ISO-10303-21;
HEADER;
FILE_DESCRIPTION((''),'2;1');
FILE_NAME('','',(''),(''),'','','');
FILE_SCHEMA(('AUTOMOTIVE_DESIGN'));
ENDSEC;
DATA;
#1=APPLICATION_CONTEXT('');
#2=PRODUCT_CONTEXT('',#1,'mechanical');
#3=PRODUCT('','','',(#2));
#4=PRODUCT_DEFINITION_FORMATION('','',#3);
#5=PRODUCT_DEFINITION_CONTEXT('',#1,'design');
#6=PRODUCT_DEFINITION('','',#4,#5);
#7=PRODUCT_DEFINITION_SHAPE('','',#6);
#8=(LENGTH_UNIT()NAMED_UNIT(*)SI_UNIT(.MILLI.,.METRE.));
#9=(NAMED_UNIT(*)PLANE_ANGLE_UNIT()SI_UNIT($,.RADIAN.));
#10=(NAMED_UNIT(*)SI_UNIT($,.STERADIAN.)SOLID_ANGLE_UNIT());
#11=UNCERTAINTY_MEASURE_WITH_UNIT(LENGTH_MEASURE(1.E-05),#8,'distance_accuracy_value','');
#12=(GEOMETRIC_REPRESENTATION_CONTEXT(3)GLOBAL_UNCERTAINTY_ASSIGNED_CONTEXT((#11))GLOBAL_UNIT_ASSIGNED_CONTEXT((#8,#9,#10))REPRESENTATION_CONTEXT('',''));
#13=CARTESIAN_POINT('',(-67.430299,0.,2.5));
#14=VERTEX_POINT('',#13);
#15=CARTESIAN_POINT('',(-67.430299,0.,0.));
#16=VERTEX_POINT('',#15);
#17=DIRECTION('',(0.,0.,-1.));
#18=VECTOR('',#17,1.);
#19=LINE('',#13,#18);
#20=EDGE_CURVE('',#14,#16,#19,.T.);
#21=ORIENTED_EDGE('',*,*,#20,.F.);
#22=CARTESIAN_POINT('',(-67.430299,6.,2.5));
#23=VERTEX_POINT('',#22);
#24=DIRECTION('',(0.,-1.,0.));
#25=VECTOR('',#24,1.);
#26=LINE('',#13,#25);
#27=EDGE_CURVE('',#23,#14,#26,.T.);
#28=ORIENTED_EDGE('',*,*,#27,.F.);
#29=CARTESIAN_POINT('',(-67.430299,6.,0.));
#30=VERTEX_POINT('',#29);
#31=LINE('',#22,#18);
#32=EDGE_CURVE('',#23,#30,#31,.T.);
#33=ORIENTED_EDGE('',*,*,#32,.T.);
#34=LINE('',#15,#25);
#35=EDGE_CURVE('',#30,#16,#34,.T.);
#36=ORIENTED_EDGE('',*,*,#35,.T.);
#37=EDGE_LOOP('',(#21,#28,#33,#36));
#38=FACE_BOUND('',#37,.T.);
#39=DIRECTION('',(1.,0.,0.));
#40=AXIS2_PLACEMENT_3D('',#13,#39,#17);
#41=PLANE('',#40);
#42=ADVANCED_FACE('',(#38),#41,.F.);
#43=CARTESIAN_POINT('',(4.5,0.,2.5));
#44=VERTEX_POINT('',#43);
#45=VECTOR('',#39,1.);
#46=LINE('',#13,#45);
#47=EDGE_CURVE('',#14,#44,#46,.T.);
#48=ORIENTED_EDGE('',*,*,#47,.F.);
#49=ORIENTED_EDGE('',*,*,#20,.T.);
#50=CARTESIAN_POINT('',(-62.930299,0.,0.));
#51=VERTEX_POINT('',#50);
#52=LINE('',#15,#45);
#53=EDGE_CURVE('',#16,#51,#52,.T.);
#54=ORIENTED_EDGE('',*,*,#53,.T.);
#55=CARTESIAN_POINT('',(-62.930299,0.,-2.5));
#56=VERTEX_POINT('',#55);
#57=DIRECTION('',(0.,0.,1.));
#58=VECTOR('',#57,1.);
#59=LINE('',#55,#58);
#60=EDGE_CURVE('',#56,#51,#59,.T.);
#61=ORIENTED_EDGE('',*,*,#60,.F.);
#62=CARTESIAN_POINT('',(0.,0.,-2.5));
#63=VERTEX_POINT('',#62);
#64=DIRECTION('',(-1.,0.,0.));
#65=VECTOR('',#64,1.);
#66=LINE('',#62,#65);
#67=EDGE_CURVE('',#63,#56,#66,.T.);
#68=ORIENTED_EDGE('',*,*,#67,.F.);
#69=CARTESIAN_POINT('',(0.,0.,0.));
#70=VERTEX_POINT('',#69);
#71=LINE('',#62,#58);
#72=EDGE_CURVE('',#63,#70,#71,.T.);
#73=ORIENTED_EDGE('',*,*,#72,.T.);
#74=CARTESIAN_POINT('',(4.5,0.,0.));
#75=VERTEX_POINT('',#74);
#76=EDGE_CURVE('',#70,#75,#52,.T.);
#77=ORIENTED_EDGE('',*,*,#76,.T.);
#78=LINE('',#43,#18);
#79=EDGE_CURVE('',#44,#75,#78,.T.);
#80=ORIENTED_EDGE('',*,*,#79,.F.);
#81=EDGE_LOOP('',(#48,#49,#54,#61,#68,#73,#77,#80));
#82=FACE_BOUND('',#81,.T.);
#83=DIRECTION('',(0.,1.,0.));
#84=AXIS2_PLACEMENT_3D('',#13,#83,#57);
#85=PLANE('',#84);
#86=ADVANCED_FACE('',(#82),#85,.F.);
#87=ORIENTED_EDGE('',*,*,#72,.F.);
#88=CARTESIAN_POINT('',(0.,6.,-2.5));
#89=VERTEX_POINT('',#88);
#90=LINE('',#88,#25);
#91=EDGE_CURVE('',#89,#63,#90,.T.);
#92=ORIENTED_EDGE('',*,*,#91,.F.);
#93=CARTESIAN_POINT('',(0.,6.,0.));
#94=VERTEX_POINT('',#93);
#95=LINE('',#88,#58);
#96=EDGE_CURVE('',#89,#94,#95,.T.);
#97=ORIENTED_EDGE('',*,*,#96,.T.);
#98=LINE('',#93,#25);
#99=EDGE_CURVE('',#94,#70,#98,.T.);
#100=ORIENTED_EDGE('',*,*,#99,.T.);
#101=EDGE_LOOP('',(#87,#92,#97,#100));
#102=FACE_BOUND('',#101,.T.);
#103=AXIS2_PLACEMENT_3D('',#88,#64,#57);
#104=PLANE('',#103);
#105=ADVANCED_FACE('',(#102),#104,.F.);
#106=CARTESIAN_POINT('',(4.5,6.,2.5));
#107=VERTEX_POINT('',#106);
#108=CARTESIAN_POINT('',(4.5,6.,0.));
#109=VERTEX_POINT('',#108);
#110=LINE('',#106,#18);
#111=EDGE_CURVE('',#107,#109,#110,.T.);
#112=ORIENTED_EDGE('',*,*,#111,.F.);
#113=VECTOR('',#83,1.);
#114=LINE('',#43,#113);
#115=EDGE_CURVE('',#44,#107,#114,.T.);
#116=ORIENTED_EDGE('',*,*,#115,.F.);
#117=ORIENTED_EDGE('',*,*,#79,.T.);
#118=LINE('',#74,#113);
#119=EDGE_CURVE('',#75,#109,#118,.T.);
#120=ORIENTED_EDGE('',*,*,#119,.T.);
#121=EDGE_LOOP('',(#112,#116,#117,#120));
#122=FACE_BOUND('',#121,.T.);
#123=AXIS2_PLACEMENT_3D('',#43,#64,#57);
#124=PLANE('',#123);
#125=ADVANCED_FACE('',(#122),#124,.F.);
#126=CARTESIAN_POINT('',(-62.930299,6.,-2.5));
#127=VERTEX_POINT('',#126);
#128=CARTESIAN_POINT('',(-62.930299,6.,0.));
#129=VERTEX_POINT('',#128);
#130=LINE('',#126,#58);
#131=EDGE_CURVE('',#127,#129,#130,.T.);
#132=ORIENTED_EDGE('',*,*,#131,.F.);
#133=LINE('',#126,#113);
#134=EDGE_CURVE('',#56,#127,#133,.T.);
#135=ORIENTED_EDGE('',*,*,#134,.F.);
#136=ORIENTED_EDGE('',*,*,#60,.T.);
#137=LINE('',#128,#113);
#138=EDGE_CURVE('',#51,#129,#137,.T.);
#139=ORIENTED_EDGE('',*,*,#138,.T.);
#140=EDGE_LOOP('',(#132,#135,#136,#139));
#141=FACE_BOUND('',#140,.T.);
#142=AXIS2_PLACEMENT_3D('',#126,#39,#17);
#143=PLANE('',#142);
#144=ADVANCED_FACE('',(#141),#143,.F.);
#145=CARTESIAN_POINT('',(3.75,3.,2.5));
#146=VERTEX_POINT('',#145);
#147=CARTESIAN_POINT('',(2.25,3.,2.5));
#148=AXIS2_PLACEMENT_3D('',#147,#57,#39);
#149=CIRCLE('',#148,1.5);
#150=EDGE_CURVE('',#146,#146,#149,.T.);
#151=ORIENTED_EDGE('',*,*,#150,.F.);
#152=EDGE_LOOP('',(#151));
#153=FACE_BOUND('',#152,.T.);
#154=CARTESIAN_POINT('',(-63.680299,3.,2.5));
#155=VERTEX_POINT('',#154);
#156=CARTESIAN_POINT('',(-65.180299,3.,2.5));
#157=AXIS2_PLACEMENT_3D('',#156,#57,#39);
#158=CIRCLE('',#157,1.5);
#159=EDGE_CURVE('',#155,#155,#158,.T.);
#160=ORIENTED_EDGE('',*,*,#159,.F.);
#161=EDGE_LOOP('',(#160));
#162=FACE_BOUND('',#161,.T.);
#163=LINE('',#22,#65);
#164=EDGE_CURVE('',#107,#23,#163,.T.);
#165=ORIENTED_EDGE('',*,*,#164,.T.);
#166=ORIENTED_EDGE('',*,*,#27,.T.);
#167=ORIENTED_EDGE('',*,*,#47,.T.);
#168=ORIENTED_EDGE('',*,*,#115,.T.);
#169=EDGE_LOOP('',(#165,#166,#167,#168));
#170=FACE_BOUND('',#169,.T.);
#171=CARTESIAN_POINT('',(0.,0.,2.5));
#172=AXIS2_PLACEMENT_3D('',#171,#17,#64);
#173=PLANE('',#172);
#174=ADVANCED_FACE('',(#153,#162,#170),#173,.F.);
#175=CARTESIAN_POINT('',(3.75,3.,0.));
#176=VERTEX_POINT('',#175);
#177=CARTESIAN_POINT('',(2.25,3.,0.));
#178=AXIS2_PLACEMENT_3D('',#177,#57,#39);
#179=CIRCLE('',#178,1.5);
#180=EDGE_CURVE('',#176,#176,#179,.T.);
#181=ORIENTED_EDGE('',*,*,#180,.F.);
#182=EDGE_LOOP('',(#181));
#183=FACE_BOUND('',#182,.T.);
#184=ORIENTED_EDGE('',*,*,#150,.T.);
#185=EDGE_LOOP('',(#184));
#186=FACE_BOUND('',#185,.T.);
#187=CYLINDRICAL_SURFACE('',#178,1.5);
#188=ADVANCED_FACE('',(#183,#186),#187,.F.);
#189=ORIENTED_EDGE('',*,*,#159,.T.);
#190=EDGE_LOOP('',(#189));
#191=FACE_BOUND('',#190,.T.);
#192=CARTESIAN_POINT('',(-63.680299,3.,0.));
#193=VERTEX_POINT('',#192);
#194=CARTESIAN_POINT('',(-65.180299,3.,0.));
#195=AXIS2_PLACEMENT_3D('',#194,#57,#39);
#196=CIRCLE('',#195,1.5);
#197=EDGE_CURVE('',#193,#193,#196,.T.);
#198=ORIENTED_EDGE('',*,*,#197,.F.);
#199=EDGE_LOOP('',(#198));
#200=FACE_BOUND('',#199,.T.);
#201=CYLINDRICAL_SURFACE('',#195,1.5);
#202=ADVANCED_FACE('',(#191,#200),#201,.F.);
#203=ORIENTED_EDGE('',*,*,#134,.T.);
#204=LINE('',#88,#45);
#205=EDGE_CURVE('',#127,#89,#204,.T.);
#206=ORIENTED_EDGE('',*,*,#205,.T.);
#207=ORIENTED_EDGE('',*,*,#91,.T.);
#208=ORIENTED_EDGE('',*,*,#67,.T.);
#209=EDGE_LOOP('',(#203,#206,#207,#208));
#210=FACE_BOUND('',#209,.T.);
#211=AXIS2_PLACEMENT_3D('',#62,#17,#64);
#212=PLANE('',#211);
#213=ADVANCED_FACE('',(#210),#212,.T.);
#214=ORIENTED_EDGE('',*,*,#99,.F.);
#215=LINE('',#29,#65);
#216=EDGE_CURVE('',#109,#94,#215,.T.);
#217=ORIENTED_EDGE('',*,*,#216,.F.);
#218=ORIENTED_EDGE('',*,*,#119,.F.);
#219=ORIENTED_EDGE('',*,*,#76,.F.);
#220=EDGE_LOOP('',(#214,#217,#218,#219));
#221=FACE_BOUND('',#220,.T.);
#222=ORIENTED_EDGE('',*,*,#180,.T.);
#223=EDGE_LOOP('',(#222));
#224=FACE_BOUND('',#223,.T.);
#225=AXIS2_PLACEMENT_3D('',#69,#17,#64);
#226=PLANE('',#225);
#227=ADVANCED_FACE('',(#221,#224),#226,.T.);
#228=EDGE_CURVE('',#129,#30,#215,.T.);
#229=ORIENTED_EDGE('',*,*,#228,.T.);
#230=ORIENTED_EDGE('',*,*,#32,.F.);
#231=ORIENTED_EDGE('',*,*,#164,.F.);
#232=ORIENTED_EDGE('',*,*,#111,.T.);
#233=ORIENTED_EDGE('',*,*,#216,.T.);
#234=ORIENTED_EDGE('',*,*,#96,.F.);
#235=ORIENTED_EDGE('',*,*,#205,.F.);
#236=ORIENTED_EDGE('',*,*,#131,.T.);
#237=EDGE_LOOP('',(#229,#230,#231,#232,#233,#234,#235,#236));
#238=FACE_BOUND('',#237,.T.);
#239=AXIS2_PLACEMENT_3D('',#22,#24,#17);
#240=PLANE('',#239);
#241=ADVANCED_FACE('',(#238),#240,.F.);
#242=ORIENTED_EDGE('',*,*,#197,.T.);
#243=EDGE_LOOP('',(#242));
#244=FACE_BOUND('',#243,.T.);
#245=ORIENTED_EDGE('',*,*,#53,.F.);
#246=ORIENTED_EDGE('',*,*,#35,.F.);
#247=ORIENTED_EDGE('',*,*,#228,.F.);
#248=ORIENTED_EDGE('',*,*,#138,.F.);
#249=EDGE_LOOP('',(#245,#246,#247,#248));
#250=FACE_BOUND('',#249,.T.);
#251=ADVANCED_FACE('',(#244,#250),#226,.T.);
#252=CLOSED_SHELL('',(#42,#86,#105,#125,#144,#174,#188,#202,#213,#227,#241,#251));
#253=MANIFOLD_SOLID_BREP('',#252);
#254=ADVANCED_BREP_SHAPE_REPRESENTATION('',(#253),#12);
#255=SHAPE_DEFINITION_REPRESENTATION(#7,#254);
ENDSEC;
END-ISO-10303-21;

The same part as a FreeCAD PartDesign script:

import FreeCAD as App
import Part
import Sketcher

V = App.Vector

doc = App.newDocument("Part")
body = doc.addObject("PartDesign::Body", "Body")

# Sketch on XY plane
sketch1 = body.newObject("Sketcher::SketchObject", "Sketch")
sketch1.AttachmentSupport = (doc.getObject("XY_Plane"), [""])
sketch1.MapMode = "FlatFace"
sketch1.addGeometry([
    Part.LineSegment(V(-67, 6, 0), V(-67, 0, 0)),
    Part.LineSegment(V(-67, 0, 0), V(4, 0, 0)),
    Part.LineSegment(V(4, 0, 0), V(4, 6, 0)),
    Part.LineSegment(V(4, 6, 0), V(-67, 6, 0)),
], False)
sketch1.addConstraint([
    Sketcher.Constraint("Coincident", 0, 2, 1, 1),
    Sketcher.Constraint("Coincident", 1, 2, 2, 1),
    Sketcher.Constraint("Coincident", 2, 2, 3, 1),
    Sketcher.Constraint("Coincident", 3, 2, 0, 1),
    Sketcher.Constraint("Vertical", 0),
    Sketcher.Constraint("Horizontal", 1),
    Sketcher.Constraint("Vertical", 2),
    Sketcher.Constraint("Horizontal", 3),
    Sketcher.Constraint("PointOnObject", 0, 2, -1),
    Sketcher.Constraint("DistanceY", 0, 2, 0, 1, 6.0),
    Sketcher.Constraint("DistanceX", -1, 1, 1, 2, 4.5),
    Sketcher.Constraint("DistanceX", 1, 1, 1, 2, 71.930299),
])
pad1 = body.newObject("PartDesign::Pad", "Pad")
pad1.Profile = sketch1
pad1.Length = 2.5

# Sketch on XY plane
sketch2 = body.newObject("Sketcher::SketchObject", "Sketch001")
sketch2.AttachmentSupport = (doc.getObject("XY_Plane"), [""])
sketch2.MapMode = "FlatFace"
sketch2.AttachmentOffset = App.Placement(V(0, 0, 2.5), App.Rotation())
sketch2.addGeometry([
    Part.Circle(V(2.2, 3, 0), V(0, 0, 1), 1.5),
    Part.Circle(V(-65.2, 3, 0), V(0, 0, 1), 1.5),
], False)
sketch2.addConstraint([
    Sketcher.Constraint("Equal", 0, 1),
    Sketcher.Constraint("Horizontal", 0, 3, 1, 3),
    Sketcher.Constraint("Diameter", 0, 3.0),
    Sketcher.Constraint("DistanceY", -1, 1, 0, 3, 3.0),
    Sketcher.Constraint("DistanceX", -1, 1, 0, 3, 2.25),
    Sketcher.Constraint("DistanceX", 1, 3, -1, 1, 65.180299),
])
pocket1 = body.newObject("PartDesign::Pocket", "Pocket")
pocket1.Profile = sketch2
pocket1.Length = 2.5

# Sketch on XY plane
sketch3 = body.newObject("Sketcher::SketchObject", "Sketch002")
sketch3.AttachmentSupport = (doc.getObject("XY_Plane"), [""])
sketch3.MapMode = "FlatFace"
sketch3.addGeometry([
    Part.LineSegment(V(0, 6, 0), V(0, 0, 0)),
    Part.LineSegment(V(0, 0, 0), V(-63, 0, 0)),
    Part.LineSegment(V(-63, 0, 0), V(-63, 6, 0)),
    Part.LineSegment(V(-63, 6, 0), V(0, 6, 0)),
], False)
sketch3.addConstraint([
    Sketcher.Constraint("Coincident", 0, 2, 1, 1),
    Sketcher.Constraint("Coincident", 1, 2, 2, 1),
    Sketcher.Constraint("Coincident", 2, 2, 3, 1),
    Sketcher.Constraint("Coincident", 3, 2, 0, 1),
    Sketcher.Constraint("Vertical", 0),
    Sketcher.Constraint("Horizontal", 1),
    Sketcher.Constraint("Vertical", 2),
    Sketcher.Constraint("Horizontal", 3),
    Sketcher.Constraint("Coincident", 0, 2, -1, 1),
    Sketcher.Constraint("DistanceY", 0, 2, 0, 1, 6.0),
    Sketcher.Constraint("DistanceX", 1, 2, 1, 1, 62.930299),
])
pad2 = body.newObject("PartDesign::Pad", "Pad001")
pad2.Profile = sketch3
pad2.Length = 2.5
pad2.Reversed = True

doc.recompute()
